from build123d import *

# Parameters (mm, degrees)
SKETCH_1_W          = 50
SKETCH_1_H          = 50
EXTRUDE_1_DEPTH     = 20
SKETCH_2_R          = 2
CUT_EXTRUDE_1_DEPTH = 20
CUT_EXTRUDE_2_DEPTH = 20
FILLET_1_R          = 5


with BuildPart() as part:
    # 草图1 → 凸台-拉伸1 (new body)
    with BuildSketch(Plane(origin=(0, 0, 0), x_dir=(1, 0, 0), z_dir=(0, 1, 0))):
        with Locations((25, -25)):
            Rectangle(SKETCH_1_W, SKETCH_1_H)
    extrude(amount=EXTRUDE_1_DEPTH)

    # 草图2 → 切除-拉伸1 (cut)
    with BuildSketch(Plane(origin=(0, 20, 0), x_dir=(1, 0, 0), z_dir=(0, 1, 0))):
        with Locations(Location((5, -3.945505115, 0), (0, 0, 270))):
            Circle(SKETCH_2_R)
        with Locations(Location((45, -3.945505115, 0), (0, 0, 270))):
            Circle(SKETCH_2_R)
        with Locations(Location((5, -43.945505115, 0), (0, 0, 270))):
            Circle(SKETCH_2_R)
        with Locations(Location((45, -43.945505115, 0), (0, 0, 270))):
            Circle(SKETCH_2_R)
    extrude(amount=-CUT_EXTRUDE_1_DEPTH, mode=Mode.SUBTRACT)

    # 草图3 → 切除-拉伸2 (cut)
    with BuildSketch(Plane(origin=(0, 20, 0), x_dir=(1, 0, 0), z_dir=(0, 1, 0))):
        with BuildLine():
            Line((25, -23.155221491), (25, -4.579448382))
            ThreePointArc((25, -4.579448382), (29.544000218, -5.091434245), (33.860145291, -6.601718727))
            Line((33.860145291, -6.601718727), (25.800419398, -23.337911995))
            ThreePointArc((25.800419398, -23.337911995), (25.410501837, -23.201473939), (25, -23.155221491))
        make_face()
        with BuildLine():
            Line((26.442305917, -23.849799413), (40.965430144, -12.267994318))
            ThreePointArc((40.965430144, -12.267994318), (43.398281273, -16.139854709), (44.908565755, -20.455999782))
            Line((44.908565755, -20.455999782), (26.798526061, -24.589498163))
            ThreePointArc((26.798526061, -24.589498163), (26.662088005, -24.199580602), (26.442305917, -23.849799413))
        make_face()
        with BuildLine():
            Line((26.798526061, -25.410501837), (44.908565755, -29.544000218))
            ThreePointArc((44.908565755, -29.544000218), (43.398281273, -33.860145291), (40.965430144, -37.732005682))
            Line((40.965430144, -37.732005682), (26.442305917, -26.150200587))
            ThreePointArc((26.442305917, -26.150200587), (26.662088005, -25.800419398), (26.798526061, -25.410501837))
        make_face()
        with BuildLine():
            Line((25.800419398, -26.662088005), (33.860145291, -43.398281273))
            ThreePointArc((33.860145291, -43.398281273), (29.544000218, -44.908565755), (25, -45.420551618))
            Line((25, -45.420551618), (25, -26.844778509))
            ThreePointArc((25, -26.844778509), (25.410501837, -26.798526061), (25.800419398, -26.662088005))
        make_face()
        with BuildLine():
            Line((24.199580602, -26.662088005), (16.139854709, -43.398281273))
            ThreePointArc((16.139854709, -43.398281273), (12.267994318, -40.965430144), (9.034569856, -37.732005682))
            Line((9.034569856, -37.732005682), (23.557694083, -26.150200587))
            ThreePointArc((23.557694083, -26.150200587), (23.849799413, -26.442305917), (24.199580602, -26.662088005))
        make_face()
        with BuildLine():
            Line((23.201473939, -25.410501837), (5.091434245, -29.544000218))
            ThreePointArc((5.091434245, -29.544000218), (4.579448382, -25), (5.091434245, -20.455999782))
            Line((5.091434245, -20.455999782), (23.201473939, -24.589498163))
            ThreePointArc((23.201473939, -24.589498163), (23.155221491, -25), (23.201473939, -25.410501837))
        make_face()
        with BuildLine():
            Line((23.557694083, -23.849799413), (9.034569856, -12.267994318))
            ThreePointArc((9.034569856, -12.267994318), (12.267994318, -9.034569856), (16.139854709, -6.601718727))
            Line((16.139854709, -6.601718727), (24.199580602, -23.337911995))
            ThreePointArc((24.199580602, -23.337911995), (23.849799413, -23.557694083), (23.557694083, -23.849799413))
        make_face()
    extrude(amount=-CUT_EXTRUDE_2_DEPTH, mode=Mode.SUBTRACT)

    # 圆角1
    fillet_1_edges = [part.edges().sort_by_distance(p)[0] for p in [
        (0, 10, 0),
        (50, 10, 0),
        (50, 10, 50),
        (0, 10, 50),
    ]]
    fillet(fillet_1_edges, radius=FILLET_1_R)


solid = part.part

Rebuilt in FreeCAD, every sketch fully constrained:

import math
import FreeCAD as App
import Part
import Sketcher

V = App.Vector
Q = App.Units.Quantity


def edges_at(feature, points):
    """Names of the edges that pass closest to the given points."""
    edges = feature.Shape.Edges
    near = lambda p: min(range(len(edges)), key=lambda i: edges[i].distToShape(Part.Vertex(*p))[0])
    return sorted({f"Edge{near(p) + 1}" for p in points})

doc = App.newDocument("Part")
body = doc.addObject("PartDesign::Body", "Body")

# Sketch on XZ plane
sketch1 = body.newObject("Sketcher::SketchObject", "Sketch")
sketch1.AttachmentSupport = (doc.getObject("XZ_Plane"), [""])
sketch1.MapMode = "FlatFace"
sketch1.addGeometry([
    Part.LineSegment(V(0, 0, 0), V(0, 50, 0)),
    Part.LineSegment(V(0, 50, 0), V(50, 50, 0)),
    Part.LineSegment(V(50, 50, 0), V(50, 0, 0)),
    Part.LineSegment(V(50, 0, 0), V(0, 0, 0)),
], False)
sketch1.addConstraint([
    Sketcher.Constraint("Coincident", 0, 2, 1, 1),
    Sketcher.Constraint("Coincident", 1, 2, 2, 1),
    Sketcher.Constraint("Coincident", 2, 2, 3, 1),
    Sketcher.Constraint("Coincident", 3, 2, 0, 1),
    Sketcher.Constraint("Vertical", 0),
    Sketcher.Constraint("Horizontal", 1),
    Sketcher.Constraint("Vertical", 2),
    Sketcher.Constraint("Horizontal", 3),
    Sketcher.Constraint("Coincident", 3, 2, -1, 1),
    Sketcher.Constraint("Equal", 3, 0),
    Sketcher.Constraint("DistanceX", 1, 1, 1, 2, Q("50 mm")),
])
pad1 = body.newObject("PartDesign::Pad", "Pad")
pad1.Profile = sketch1
pad1.Length = 20
pad1.Reversed = True

# Sketch on XZ plane
sketch2 = body.newObject("Sketcher::SketchObject", "Sketch001")
sketch2.AttachmentSupport = (doc.getObject("XZ_Plane"), [""])
sketch2.MapMode = "FlatFace"
sketch2.AttachmentOffset = App.Placement(V(0, 0, -20), App.Rotation())
sketch2.addGeometry([
    Part.Circle(V(5, 3.9, 0), V(0, 0, 1), 2),
    Part.Circle(V(45, 3.9, 0), V(0, 0, 1), 2),
    Part.Circle(V(5, 43.9, 0), V(0, 0, 1), 2),
    Part.Circle(V(45, 43.9, 0), V(0, 0, 1), 2),
], False)
sketch2.addConstraint([
    Sketcher.Constraint("Equal", 0, 1),
    Sketcher.Constraint("Equal", 1, 2),
    Sketcher.Constraint("Equal", 2, 3),
    Sketcher.Constraint("Horizontal", 0, 3, 1, 3),
    Sketcher.Constraint("Horizontal", 2, 3, 3, 3),
    Sketcher.Constraint("Vertical", 0, 3, 2, 3),
    Sketcher.Constraint("Vertical", 1, 3, 3, 3),
    Sketcher.Constraint("Diameter", 0, Q("4 mm")),
    Sketcher.Constraint("DistanceX", -1, 1, 0, 3, Q("5 mm")),
    Sketcher.Constraint("DistanceX", -1, 1, 1, 3, Q("45 mm")),
    Sketcher.Constraint("DistanceY", 0, 3, 2, 3, Q("40 mm")),
    Sketcher.Constraint("DistanceY", -1, 1, 0, 3, Q("3.945505 mm")),
])
pocket1 = body.newObject("PartDesign::Pocket", "Pocket")
pocket1.Profile = sketch2
pocket1.Length = 20
pocket1.Reversed = True

# Sketch on XZ plane
sketch3 = body.newObject("Sketcher::SketchObject", "Sketch002")
sketch3.AttachmentSupport = (doc.getObject("XZ_Plane"), [""])
sketch3.MapMode = "FlatFace"
sketch3.AttachmentOffset = App.Placement(V(0, 0, -20), App.Rotation())
sketch3.addGeometry([
    Part.LineSegment(V(25, 4.6, 0), V(25, 23.2, 0)),  # 0
    Part.ArcOfCircle(Part.Circle(V(25, 25, 0), V(0, 0, 1), 1.8), math.radians(-90), math.radians(-64)),  # 1
    Part.LineSegment(V(25.8, 23.3, 0), V(33.9, 6.6, 0)),  # 2
    Part.ArcOfCircle(Part.Circle(V(25, 25, 0), V(0, 0, 1), 20.4), math.radians(-90), math.radians(-64)),  # 3
    Part.LineSegment(V(41, 12.3, 0), V(26.4, 23.8, 0)),  # 4
    Part.ArcOfCircle(Part.Circle(V(25, 25, 0), V(0, 0, 1), 1.8), math.radians(-39), math.radians(-13)),  # 5
    Part.LineSegment(V(26.8, 24.6, 0), V(44.9, 20.5, 0)),  # 6
    Part.ArcOfCircle(Part.Circle(V(25, 25, 0), V(0, 0, 1), 20.4), math.radians(-39), math.radians(-13)),  # 7
    Part.LineSegment(V(44.9, 29.5, 0), V(26.8, 25.4, 0)),  # 8
    Part.ArcOfCircle(Part.Circle(V(25, 25, 0), V(0, 0, 1), 1.8), math.radians(13), math.radians(39)),  # 9
    Part.LineSegment(V(26.4, 26.2, 0), V(41, 37.7, 0)),  # 10
    Part.ArcOfCircle(Part.Circle(V(25, 25, 0), V(0, 0, 1), 20.4), math.radians(13), math.radians(39)),  # 11
    Part.LineSegment(V(33.9, 43.4, 0), V(25.8, 26.7, 0)),  # 12
    Part.ArcOfCircle(Part.Circle(V(25, 25, 0), V(0, 0, 1), 1.8), math.radians(64), math.radians(90)),  # 13
    Part.LineSegment(V(25, 26.8, 0), V(25, 45.4, 0)),  # 14
    Part.ArcOfCircle(Part.Circle(V(25, 25, 0), V(0, 0, 1), 20.4), math.radians(64), math.radians(90)),  # 15
    Part.LineSegment(V(16.1, 43.4, 0), V(24.2, 26.7, 0)),  # 16
    Part.ArcOfCircle(Part.Circle(V(25, 25, 0), V(0, 0, 1), 1.8), math.radians(116), math.radians(141)),  # 17
    Part.LineSegment(V(23.6, 26.2, 0), V(9, 37.7, 0)),  # 18
    Part.ArcOfCircle(Part.Circle(V(25, 25, 0), V(0, 0, 1), 20.4), math.radians(116), math.radians(141)),  # 19
    Part.LineSegment(V(5.1, 29.5, 0), V(23.2, 25.4, 0)),  # 20
    Part.ArcOfCircle(Part.Circle(V(25, 25, 0), V(0, 0, 1), 1.8), math.radians(167), math.radians(193)),  # 21
    Part.LineSegment(V(23.2, 24.6, 0), V(5.1, 20.5, 0)),  # 22
    Part.ArcOfCircle(Part.Circle(V(25, 25, 0), V(0, 0, 1), 20.4), math.radians(167), math.radians(193)),  # 23
    Part.LineSegment(V(9, 12.3, 0), V(23.6, 23.8, 0)),  # 24
    Part.ArcOfCircle(Part.Circle(V(25, 25, 0), V(0, 0, 1), 1.8), math.radians(-141), math.radians(-116)),  # 25
    Part.LineSegment(V(24.2, 23.3, 0), V(16.1, 6.6, 0)),  # 26
    Part.ArcOfCircle(Part.Circle(V(25, 25, 0), V(0, 0, 1), 20.4), math.radians(-141), math.radians(-116)),  # 27
], False)
sketch3.addConstraint([
    Sketcher.Constraint("Coincident", 0, 2, 1, 1),
    Sketcher.Constraint("Coincident", 1, 2, 2, 1),
    Sketcher.Constraint("Coincident", 2, 2, 3, 2),
    Sketcher.Constraint("Coincident", 3, 1, 0, 1),
    Sketcher.Constraint("Coincident", 4, 2, 5, 1),
    Sketcher.Constraint("Coincident", 5, 2, 6, 1),
    Sketcher.Constraint("Coincident", 6, 2, 7, 2),
    Sketcher.Constraint("Coincident", 7, 1, 4, 1),
    Sketcher.Constraint("Coincident", 8, 2, 9, 1),
    Sketcher.Constraint("Coincident", 9, 2, 10, 1),
    Sketcher.Constraint("Coincident", 10, 2, 11, 2),
    Sketcher.Constraint("Coincident", 11, 1, 8, 1),
    Sketcher.Constraint("Coincident", 12, 2, 13, 1),
    Sketcher.Constraint("Coincident", 13, 2, 14, 1),
    Sketcher.Constraint("Coincident", 14, 2, 15, 2),
    Sketcher.Constraint("Coincident", 15, 1, 12, 1),
    Sketcher.Constraint("Coincident", 16, 2, 17, 1),
    Sketcher.Constraint("Coincident", 17, 2, 18, 1),
    Sketcher.Constraint("Coincident", 18, 2, 19, 2),
    Sketcher.Constraint("Coincident", 19, 1, 16, 1),
    Sketcher.Constraint("Coincident", 20, 2, 21, 1),
    Sketcher.Constraint("Coincident", 21, 2, 22, 1),
    Sketcher.Constraint("Coincident", 22, 2, 23, 2),
    Sketcher.Constraint("Coincident", 23, 1, 20, 1),
    Sketcher.Constraint("Coincident", 24, 2, 25, 1),
    Sketcher.Constraint("Coincident", 25, 2, 26, 1),
    Sketcher.Constraint("Coincident", 26, 2, 27, 2),
    Sketcher.Constraint("Coincident", 27, 1, 24, 1),
    Sketcher.Constraint("Vertical", 0),
    Sketcher.Constraint("Vertical", 14),
    Sketcher.Constraint("Coincident", 3, 3, 1, 3),
    Sketcher.Constraint("Coincident", 5, 3, 1, 3),
    Sketcher.Constraint("Coincident", 7, 3, 1, 3),
    Sketcher.Constraint("Coincident", 9, 3, 1, 3),
    Sketcher.Constraint("Coincident", 11, 3, 1, 3),
    Sketcher.Constraint("Coincident", 13, 3, 1, 3),
    Sketcher.Constraint("Coincident", 15, 3, 1, 3),
    Sketcher.Constraint("Coincident", 17, 3, 1, 3),
    Sketcher.Constraint("Coincident", 19, 3, 1, 3),
    Sketcher.Constraint("Coincident", 21, 3, 1, 3),
    Sketcher.Constraint("Coincident", 23, 3, 1, 3),
    Sketcher.Constraint("Coincident", 25, 3, 1, 3),
    Sketcher.Constraint("Coincident", 27, 3, 1, 3),
    Sketcher.Constraint("Equal", 1, 5),
    Sketcher.Constraint("Equal", 3, 7),
    Sketcher.Constraint("Equal", 5, 9),
    Sketcher.Constraint("Equal", 7, 11),
    Sketcher.Constraint("Equal", 9, 13),
    Sketcher.Constraint("Equal", 11, 15),
    Sketcher.Constraint("Equal", 13, 17),
    Sketcher.Constraint("Equal", 15, 19),
    Sketcher.Constraint("Equal", 17, 21),
    Sketcher.Constraint("Equal", 19, 23),
    Sketcher.Constraint("Equal", 21, 25),
    Sketcher.Constraint("Equal", 23, 27),
    Sketcher.Constraint("Parallel", 2, 16),
    Sketcher.Constraint("Parallel", 4, 18),
    Sketcher.Constraint("Parallel", 6, 20),
    Sketcher.Constraint("Parallel", 8, 22),
    Sketcher.Constraint("Parallel", 10, 24),
    Sketcher.Constraint("Parallel", 12, 26),
    Sketcher.Constraint("Horizontal", 12, 2, 16, 2),
    Sketcher.Constraint("Horizontal", 9, 2, 17, 2),
    Sketcher.Constraint("Horizontal", 10, 2, 18, 2),
    Sketcher.Constraint("Horizontal", 15, 1, 19, 1),
    Sketcher.Constraint("Horizontal", 8, 2, 20, 2),
    Sketcher.Constraint("Horizontal", 5, 2, 21, 2),
    Sketcher.Constraint("Horizontal", 6, 2, 22, 2),
    Sketcher.Constraint("Horizontal", 4, 2, 24, 2),
    Sketcher.Constraint("Horizontal", 1, 2, 25, 2),
    Sketcher.Constraint("Vertical", 27, 3, 0, 2),
    Sketcher.Constraint("Vertical", 5, 2, 8, 2),
    Sketcher.Constraint("Vertical", 4, 2, 9, 2),
    Sketcher.Constraint("Vertical", 1, 2, 12, 2),
    Sketcher.Constraint("Vertical", 3, 1, 13, 2),
    Sketcher.Constraint("DistanceX", -1, 1, 1, 3, Q("25 mm")),
    Sketcher.Constraint("DistanceY", -1, 1, 1, 3, Q("25 mm")),
    Sketcher.Constraint("Radius", 1, Q("1.844778 mm")),
    Sketcher.Constraint("Radius", 3, Q("20.420552 mm")),
    Sketcher.Constraint("DistanceY", -1, 1, 6, 2, Q("20.456 mm")),
    Sketcher.Constraint("DistanceY", -1, 1, 4, 2, Q("23.849799 mm")),
    Sketcher.Constraint("DistanceY", -1, 1, 5, 2, Q("24.589498 mm")),
    Sketcher.Constraint("DistanceX", -1, 1, 1, 2, Q("25.800419 mm")),
    Sketcher.Constraint("DistanceY", -1, 1, 2, 2, Q("6.601719 mm")),
    Sketcher.Constraint("DistanceX", -1, 1, 7, 1, Q("40.96543 mm")),
])
pocket2 = body.newObject("PartDesign::Pocket", "Pocket001")
pocket2.Profile = sketch3
pocket2.Length = 20
pocket2.Reversed = True
doc.recompute()

fillet = body.newObject("PartDesign::Fillet", "Fillet")
fillet.Base = (pocket2, edges_at(pocket2, [
    (0, 10, 0),
    (50, 10, 0),
    (50, 10, 50),
    (0, 10, 50),
]))
fillet.Radius = 5

doc.recompute()
